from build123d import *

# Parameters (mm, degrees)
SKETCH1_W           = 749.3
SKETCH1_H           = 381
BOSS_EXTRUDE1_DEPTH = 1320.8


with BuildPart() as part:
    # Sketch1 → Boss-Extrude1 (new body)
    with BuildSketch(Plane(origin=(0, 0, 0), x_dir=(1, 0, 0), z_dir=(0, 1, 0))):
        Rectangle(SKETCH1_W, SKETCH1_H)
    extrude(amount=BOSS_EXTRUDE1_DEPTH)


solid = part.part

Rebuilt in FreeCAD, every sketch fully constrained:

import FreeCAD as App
import Part
import Sketcher

V = App.Vector
Q = App.Units.Quantity


def add_polygon(sketch, points):
    """Adds a closed chain of lines whose ends are joined by coincident constraints."""
    first, n = sketch.GeometryCount, len(points)
    for a, b in zip(points, points[1:] + points[:1]):
        sketch.addGeometry(Part.LineSegment(App.Vector(*a, 0), App.Vector(*b, 0)), False)
    for i in range(n):
        sketch.addConstraint(Sketcher.Constraint("Coincident", first + i, 2, first + (i + 1) % n, 1))

doc = App.newDocument("Part")
body = doc.addObject("PartDesign::Body", "Body")

# Sketch on XZ plane
sketch1 = body.newObject("Sketcher::SketchObject", "Sketch")
sketch1.AttachmentSupport = (doc.getObject("XZ_Plane"), [""])
sketch1.MapMode = "FlatFace"
add_polygon(sketch1, [(-375, -190), (-375, 190), (375, 190), (375, -190)])  # lines 0-3
sketch1.addConstraint(Sketcher.Constraint("Vertical", 0))
sketch1.addConstraint(Sketcher.Constraint("Horizontal", 1))
sketch1.addConstraint(Sketcher.Constraint("Vertical", 2))
sketch1.addConstraint(Sketcher.Constraint("Horizontal", 3))
sketch1.addConstraint(Sketcher.Constraint("Symmetric", 0, 2, 2, 2, -1, 1))
sketch1.addConstraint(Sketcher.Constraint("DistanceY", 0, 1, 0, 2, Q("15 in")))
sketch1.addConstraint(Sketcher.Constraint("DistanceX", 1, 1, 1, 2, Q("29.5 in")))
pad1 = body.newObject("PartDesign::Pad", "Pad")
pad1.Profile = sketch1
pad1.Length = Q("52 in")
pad1.Reversed = True

doc.recompute()
